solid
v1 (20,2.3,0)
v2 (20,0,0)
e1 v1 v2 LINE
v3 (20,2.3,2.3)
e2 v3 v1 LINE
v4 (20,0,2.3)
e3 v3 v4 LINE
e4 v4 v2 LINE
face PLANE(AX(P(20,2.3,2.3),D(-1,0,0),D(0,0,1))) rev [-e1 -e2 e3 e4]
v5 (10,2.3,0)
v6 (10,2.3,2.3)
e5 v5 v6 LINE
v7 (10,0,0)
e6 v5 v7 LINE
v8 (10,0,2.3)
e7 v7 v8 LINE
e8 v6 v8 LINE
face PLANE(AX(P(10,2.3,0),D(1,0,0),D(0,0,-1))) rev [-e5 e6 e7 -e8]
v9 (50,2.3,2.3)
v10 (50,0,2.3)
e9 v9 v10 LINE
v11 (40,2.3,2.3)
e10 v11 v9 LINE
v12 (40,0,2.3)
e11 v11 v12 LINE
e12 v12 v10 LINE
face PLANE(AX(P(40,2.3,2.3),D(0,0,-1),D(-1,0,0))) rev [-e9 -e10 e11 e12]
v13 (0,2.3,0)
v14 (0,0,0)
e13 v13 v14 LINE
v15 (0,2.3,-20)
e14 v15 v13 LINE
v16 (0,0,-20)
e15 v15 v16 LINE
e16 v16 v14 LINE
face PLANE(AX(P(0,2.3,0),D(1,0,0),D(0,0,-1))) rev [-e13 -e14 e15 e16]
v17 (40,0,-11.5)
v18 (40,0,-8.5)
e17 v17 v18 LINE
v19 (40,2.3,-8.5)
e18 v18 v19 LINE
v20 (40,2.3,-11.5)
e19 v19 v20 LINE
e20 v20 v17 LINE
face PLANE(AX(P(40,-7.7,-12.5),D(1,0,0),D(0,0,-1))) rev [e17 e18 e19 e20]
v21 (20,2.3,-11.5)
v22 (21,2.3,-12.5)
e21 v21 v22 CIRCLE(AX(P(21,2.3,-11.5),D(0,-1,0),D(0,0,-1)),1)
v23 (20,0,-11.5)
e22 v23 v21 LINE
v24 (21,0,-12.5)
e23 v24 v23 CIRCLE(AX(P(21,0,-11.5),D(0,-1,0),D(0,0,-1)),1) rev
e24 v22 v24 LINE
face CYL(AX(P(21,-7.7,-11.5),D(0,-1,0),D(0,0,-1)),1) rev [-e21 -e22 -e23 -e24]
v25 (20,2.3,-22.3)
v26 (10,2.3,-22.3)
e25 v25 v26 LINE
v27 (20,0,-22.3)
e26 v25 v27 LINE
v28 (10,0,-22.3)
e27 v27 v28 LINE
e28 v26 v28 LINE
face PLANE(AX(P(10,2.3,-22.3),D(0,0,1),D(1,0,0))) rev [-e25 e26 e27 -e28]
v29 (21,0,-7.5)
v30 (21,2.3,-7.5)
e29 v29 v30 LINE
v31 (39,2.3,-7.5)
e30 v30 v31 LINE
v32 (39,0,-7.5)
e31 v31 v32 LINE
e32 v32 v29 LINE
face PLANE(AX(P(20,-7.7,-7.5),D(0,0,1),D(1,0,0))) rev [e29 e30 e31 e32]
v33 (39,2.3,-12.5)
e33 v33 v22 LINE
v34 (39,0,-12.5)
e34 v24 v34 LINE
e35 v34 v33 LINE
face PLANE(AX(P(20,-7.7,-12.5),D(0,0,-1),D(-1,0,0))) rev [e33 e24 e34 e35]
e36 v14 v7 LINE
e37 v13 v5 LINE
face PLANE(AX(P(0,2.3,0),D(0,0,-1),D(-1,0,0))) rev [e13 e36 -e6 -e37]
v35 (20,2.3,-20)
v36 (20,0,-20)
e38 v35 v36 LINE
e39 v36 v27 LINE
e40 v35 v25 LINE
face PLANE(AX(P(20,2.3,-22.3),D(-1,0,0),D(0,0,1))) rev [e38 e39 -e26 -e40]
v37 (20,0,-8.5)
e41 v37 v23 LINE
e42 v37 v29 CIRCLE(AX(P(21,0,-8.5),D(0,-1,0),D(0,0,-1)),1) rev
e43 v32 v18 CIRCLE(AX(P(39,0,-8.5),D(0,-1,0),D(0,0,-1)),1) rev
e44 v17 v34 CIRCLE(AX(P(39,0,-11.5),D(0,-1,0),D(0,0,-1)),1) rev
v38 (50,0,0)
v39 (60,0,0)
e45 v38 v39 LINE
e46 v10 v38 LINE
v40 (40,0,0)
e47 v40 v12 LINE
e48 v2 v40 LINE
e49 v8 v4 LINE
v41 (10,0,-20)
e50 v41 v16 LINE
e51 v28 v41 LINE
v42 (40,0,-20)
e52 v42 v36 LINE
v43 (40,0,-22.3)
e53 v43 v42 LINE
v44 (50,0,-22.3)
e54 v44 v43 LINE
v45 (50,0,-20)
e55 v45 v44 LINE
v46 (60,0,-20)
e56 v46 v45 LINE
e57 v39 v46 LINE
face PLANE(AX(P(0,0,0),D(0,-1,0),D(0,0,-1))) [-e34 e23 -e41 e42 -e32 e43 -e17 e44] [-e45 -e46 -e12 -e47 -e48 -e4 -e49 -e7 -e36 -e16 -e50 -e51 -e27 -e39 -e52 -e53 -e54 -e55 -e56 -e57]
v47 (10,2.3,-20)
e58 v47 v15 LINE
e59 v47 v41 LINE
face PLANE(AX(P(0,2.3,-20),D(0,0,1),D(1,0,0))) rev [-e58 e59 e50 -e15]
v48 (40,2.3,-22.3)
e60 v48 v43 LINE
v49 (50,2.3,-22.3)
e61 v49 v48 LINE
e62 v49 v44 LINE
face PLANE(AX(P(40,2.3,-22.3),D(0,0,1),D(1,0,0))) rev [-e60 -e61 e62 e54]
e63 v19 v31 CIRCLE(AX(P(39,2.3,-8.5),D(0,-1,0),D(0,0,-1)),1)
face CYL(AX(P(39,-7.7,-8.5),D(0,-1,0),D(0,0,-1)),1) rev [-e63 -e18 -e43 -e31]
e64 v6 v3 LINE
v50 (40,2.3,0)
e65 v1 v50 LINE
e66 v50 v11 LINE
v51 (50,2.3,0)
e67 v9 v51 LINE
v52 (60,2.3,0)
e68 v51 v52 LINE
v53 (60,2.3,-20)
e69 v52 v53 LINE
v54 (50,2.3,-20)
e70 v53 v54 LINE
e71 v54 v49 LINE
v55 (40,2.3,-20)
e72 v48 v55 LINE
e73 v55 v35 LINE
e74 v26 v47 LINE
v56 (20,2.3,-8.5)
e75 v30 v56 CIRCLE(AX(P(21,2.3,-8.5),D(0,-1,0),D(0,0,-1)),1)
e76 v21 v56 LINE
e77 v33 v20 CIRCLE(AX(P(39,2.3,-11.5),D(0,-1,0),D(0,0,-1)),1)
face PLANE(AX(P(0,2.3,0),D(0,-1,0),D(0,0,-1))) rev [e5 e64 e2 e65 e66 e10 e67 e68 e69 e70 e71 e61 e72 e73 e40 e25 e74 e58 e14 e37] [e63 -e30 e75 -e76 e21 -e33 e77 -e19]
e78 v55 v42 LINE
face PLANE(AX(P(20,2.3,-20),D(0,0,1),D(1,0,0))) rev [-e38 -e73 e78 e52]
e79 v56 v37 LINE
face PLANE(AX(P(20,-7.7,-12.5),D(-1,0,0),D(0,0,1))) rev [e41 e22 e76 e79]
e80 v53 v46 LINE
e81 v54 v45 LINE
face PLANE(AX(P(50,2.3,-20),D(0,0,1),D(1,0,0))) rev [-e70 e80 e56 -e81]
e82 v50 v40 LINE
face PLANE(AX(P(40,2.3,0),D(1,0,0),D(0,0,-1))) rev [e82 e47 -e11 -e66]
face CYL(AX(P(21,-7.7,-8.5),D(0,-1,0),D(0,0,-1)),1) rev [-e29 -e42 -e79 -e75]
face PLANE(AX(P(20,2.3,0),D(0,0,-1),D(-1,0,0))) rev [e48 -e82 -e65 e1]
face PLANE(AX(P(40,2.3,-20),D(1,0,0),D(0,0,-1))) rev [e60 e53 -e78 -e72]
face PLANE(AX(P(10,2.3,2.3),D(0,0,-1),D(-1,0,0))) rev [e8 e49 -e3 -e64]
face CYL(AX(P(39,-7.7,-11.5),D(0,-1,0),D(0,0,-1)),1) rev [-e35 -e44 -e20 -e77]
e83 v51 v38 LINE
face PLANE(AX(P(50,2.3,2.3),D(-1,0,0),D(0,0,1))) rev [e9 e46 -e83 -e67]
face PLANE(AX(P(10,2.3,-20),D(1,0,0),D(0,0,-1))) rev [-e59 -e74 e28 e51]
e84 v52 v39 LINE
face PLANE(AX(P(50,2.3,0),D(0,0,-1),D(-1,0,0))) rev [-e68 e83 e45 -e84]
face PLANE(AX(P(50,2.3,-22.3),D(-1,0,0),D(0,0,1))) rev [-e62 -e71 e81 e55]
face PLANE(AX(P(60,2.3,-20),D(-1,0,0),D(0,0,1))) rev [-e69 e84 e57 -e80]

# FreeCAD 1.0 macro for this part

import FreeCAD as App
import Part
import Sketcher

V = App.Vector
Q = App.Units.Quantity


def edges_at(feature, points):
    """Names of the edges that pass closest to the given points."""
    edges = feature.Shape.Edges
    near = lambda p: min(range(len(edges)), key=lambda i: edges[i].distToShape(Part.Vertex(*p))[0])
    return sorted({f"Edge{near(p) + 1}" for p in points})


def add_polygon(sketch, points):
    """Adds a closed chain of lines whose ends are joined by coincident constraints."""
    first, n = sketch.GeometryCount, len(points)
    for a, b in zip(points, points[1:] + points[:1]):
        sketch.addGeometry(Part.LineSegment(App.Vector(*a, 0), App.Vector(*b, 0)), False)
    for i in range(n):
        sketch.addConstraint(Sketcher.Constraint("Coincident", first + i, 2, first + (i + 1) % n, 1))

doc = App.newDocument("Part")
body = doc.addObject("PartDesign::Body", "Body")

# Sketch on XZ plane
sketch1 = body.newObject("Sketcher::SketchObject", "Sketch")
sketch1.AttachmentSupport = (doc.getObject("XZ_Plane"), [""])
sketch1.MapMode = "FlatFace"
add_polygon(sketch1, [(0, -20), (0, 0), (10, 0), (10, 2.3), (20, 2.3), (20, 0), (40, 0), (40, 2.3), (50, 2.3), (50, 0), (60, 0), (60, -20), (50, -20), (50, -22.3), (40, -22.3), (40, -20), (20, -20), (20, -22.3), (10, -22.3), (10, -20)])  # lines 0-19
sketch1.addConstraint(Sketcher.Constraint("Vertical", 0))
sketch1.addConstraint(Sketcher.Constraint("Horizontal", 1))
sketch1.addConstraint(Sketcher.Constraint("Vertical", 2))
sketch1.addConstraint(Sketcher.Constraint("Horizontal", 3))
sketch1.addConstraint(Sketcher.Constraint("Vertical", 4))
sketch1.addConstraint(Sketcher.Constraint("Horizontal", 5))
sketch1.addConstraint(Sketcher.Constraint("Vertical", 6))
sketch1.addConstraint(Sketcher.Constraint("Horizontal", 7))
sketch1.addConstraint(Sketcher.Constraint("Vertical", 8))
sketch1.addConstraint(Sketcher.Constraint("Horizontal", 9))
sketch1.addConstraint(Sketcher.Constraint("Vertical", 10))
sketch1.addConstraint(Sketcher.Constraint("Horizontal", 11))
sketch1.addConstraint(Sketcher.Constraint("Vertical", 12))
sketch1.addConstraint(Sketcher.Constraint("Horizontal", 13))
sketch1.addConstraint(Sketcher.Constraint("Vertical", 14))
sketch1.addConstraint(Sketcher.Constraint("Horizontal", 15))
sketch1.addConstraint(Sketcher.Constraint("Vertical", 16))
sketch1.addConstraint(Sketcher.Constraint("Horizontal", 17))
sketch1.addConstraint(Sketcher.Constraint("Vertical", 18))
sketch1.addConstraint(Sketcher.Constraint("Horizontal", 19))
sketch1.addConstraint(Sketcher.Constraint("Coincident", 0, 2, -1, 1))
sketch1.addConstraint(Sketcher.Constraint("PointOnObject", 4, 2, -1))
sketch1.addConstraint(Sketcher.Constraint("PointOnObject", 8, 2, -1))
sketch1.addConstraint(Sketcher.Constraint("Horizontal", 3, 2, 6, 2))
sketch1.addConstraint(Sketcher.Constraint("Horizontal", 11, 2, 14, 2))
sketch1.addConstraint(Sketcher.Constraint("Horizontal", 13, 2, 16, 2))
sketch1.addConstraint(Sketcher.Constraint("Horizontal", 15, 2, 18, 2))
sketch1.addConstraint(Sketcher.Constraint("Vertical", 8, 2, 11, 2))
sketch1.addConstraint(Sketcher.Constraint("Vertical", 6, 2, 13, 2))
sketch1.addConstraint(Sketcher.Constraint("Vertical", 4, 2, 15, 2))
sketch1.addConstraint(Sketcher.Constraint("Vertical", 2, 2, 17, 2))
sketch1.addConstraint(Sketcher.Constraint("Equal", 1, 3))
sketch1.addConstraint(Sketcher.Constraint("Equal", 3, 7))
sketch1.addConstraint(Sketcher.Constraint("Equal", 7, 9))
sketch1.addConstraint(Sketcher.Constraint("Equal", 15, 0))
sketch1.addConstraint(Sketcher.Constraint("Equal", 8, 12))
sketch1.addConstraint(Sketcher.Constraint("DistanceX", 1, 1, 1, 2, Q("10 mm")))
sketch1.addConstraint(Sketcher.Constraint("DistanceX", 5, 1, 5, 2, Q("20 mm")))
sketch1.addConstraint(Sketcher.Constraint("DistanceY", 2, 1, 2, 2, Q("2.3 mm")))
pad1 = body.newObject("PartDesign::Pad", "Pad")
pad1.Profile = sketch1
pad1.Length = 2.3
pad1.Reversed = True

# Sketch on XZ plane
sketch2 = body.newObject("Sketcher::SketchObject", "Sketch001")
sketch2.AttachmentSupport = (doc.getObject("XZ_Plane"), [""])
sketch2.MapMode = "FlatFace"
sketch2.AttachmentOffset = App.Placement(V(0, 0, -2.3), App.Rotation())
add_polygon(sketch2, [(20, -12), (20, -8), (40, -8), (40, -12)])  # lines 0-3
sketch2.addConstraint(Sketcher.Constraint("Vertical", 0))
sketch2.addConstraint(Sketcher.Constraint("Horizontal", 1))
sketch2.addConstraint(Sketcher.Constraint("Vertical", 2))
sketch2.addConstraint(Sketcher.Constraint("Horizontal", 3))
sketch2.addConstraint(Sketcher.Constraint("DistanceX", 1, 1, 1, 2, Q("20 mm")))
sketch2.addConstraint(Sketcher.Constraint("DistanceY", 0, 1, 0, 2, Q("5 mm")))
sketch2.addConstraint(Sketcher.Constraint("DistanceX", -1, 1, 0, 2, Q("20 mm")))
sketch2.addConstraint(Sketcher.Constraint("DistanceY", 0, 2, -1, 1, Q("7.5 mm")))
pocket1 = body.newObject("PartDesign::Pocket", "Pocket")
pocket1.Profile = sketch2
pocket1.Length = 10
pocket1.Reversed = True
doc.recompute()

fillet = body.newObject("PartDesign::Fillet", "Fillet")
fillet.Base = (pocket1, edges_at(pocket1, [
    (20, 1.15, -12.5),
    (40, 1.15, -12.5),
    (40, 1.15, -7.5),
    (20, 1.15, -7.5),
]))
fillet.Radius = 1

doc.recompute()
